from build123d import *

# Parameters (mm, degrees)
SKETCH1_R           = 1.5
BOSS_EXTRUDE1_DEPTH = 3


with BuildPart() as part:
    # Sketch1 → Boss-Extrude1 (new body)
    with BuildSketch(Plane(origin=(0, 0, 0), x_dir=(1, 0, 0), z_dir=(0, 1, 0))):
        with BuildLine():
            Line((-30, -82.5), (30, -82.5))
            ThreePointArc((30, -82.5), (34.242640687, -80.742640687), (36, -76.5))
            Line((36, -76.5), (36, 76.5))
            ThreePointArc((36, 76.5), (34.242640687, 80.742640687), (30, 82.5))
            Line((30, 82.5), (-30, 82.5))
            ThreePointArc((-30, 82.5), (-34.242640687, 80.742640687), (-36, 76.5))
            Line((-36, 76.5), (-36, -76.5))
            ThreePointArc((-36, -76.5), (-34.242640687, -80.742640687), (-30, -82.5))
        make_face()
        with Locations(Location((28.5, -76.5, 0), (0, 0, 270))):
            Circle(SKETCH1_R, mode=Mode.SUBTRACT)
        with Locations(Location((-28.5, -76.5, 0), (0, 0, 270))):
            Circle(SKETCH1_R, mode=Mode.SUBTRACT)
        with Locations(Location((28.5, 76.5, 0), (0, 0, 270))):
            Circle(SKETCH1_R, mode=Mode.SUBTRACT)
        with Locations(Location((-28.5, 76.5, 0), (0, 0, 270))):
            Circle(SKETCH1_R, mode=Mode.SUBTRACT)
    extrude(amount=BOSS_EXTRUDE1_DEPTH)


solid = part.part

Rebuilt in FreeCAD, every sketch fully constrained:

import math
import FreeCAD as App
import Part
import Sketcher
Q = App.Units.Quantity

doc = App.newDocument("Part")
body = doc.addObject("PartDesign::Body", "Body")

# Sketch on XZ plane
sketch1 = body.newObject("Sketcher::SketchObject", "Sketch")
sketch1.AttachmentSupport = (doc.getObject("XZ_Plane"), [""])
sketch1.MapMode = "FlatFace"
sketch1.addGeometry([
    Part.LineSegment(App.Vector(-30, 82.5, 0), App.Vector(30, 82.5, 0)),  # 0
    Part.ArcOfCircle(Part.Circle(App.Vector(30, 76.5, 0), App.Vector(0, 0, 1), 6), math.radians(0), math.radians(90)),  # 1
    Part.LineSegment(App.Vector(36, 76.5, 0), App.Vector(36, -76.5, 0)),  # 2
    Part.ArcOfCircle(Part.Circle(App.Vector(30, -76.5, 0), App.Vector(0, 0, 1), 6), math.radians(-90), math.radians(0)),  # 3
    Part.LineSegment(App.Vector(30, -82.5, 0), App.Vector(-30, -82.5, 0)),  # 4
    Part.ArcOfCircle(Part.Circle(App.Vector(-30, -76.5, 0), App.Vector(0, 0, 1), 6), math.radians(180), math.radians(270)),  # 5
    Part.LineSegment(App.Vector(-36, -76.5, 0), App.Vector(-36, 76.5, 0)),  # 6
    Part.ArcOfCircle(Part.Circle(App.Vector(-30, 76.5, 0), App.Vector(0, 0, 1), 6), math.radians(90), math.radians(180)),  # 7
    Part.Circle(App.Vector(-28.5, 76.5, 0), App.Vector(0, 0, 1), 1.5),  # 8
    Part.Circle(App.Vector(28.5, 76.5, 0), App.Vector(0, 0, 1), 1.5),  # 9
    Part.Circle(App.Vector(-28.5, -76.5, 0), App.Vector(0, 0, 1), 1.5),  # 10
    Part.Circle(App.Vector(28.5, -76.5, 0), App.Vector(0, 0, 1), 1.5),  # 11
], False)
sketch1.addConstraint([
    Sketcher.Constraint("Tangent", 0, 2, 1, 2),
    Sketcher.Constraint("Tangent", 1, 1, 2, 1),
    Sketcher.Constraint("Tangent", 2, 2, 3, 2),
    Sketcher.Constraint("Tangent", 3, 1, 4, 1),
    Sketcher.Constraint("Tangent", 4, 2, 5, 2),
    Sketcher.Constraint("Tangent", 5, 1, 6, 1),
    Sketcher.Constraint("Tangent", 6, 2, 7, 2),
    Sketcher.Constraint("Tangent", 7, 1, 0, 1),
    Sketcher.Constraint("Horizontal", 0),
    Sketcher.Constraint("Vertical", 2),
    Sketcher.Constraint("Horizontal", 4),
    Sketcher.Constraint("Vertical", 6),
    Sketcher.Constraint("Equal", 1, 3),
    Sketcher.Constraint("Equal", 3, 5),
    Sketcher.Constraint("Equal", 5, 7),
    Sketcher.Constraint("Equal", 8, 9),
    Sketcher.Constraint("Equal", 9, 10),
    Sketcher.Constraint("Equal", 10, 11),
    Sketcher.Constraint("Symmetric", 1, 3, 5, 3, -1, 1),
    Sketcher.Constraint("Symmetric", 9, 3, 10, 3, -1, 1),
    Sketcher.Constraint("Symmetric", 8, 3, 11, 3, -1, 1),
    Sketcher.Constraint("Symmetric", 8, 3, 9, 3, -2),
    Sketcher.Constraint("Horizontal", 7, 3, 8, 3),
    Sketcher.Constraint("Diameter", 8, Q("3 mm")),
    Sketcher.Constraint("Radius", 1, Q("6 mm")),
    Sketcher.Constraint("DistanceX", 0, 1, 0, 2, Q("60 mm")),
    Sketcher.Constraint("DistanceY", 2, 2, 2, 1, Q("153 mm")),
    Sketcher.Constraint("DistanceX", 8, 3, 9, 3, Q("57 mm")),
])
pad1 = body.newObject("PartDesign::Pad", "Pad")
pad1.Profile = sketch1
pad1.Length = 3
pad1.Reversed = True

doc.recompute()
